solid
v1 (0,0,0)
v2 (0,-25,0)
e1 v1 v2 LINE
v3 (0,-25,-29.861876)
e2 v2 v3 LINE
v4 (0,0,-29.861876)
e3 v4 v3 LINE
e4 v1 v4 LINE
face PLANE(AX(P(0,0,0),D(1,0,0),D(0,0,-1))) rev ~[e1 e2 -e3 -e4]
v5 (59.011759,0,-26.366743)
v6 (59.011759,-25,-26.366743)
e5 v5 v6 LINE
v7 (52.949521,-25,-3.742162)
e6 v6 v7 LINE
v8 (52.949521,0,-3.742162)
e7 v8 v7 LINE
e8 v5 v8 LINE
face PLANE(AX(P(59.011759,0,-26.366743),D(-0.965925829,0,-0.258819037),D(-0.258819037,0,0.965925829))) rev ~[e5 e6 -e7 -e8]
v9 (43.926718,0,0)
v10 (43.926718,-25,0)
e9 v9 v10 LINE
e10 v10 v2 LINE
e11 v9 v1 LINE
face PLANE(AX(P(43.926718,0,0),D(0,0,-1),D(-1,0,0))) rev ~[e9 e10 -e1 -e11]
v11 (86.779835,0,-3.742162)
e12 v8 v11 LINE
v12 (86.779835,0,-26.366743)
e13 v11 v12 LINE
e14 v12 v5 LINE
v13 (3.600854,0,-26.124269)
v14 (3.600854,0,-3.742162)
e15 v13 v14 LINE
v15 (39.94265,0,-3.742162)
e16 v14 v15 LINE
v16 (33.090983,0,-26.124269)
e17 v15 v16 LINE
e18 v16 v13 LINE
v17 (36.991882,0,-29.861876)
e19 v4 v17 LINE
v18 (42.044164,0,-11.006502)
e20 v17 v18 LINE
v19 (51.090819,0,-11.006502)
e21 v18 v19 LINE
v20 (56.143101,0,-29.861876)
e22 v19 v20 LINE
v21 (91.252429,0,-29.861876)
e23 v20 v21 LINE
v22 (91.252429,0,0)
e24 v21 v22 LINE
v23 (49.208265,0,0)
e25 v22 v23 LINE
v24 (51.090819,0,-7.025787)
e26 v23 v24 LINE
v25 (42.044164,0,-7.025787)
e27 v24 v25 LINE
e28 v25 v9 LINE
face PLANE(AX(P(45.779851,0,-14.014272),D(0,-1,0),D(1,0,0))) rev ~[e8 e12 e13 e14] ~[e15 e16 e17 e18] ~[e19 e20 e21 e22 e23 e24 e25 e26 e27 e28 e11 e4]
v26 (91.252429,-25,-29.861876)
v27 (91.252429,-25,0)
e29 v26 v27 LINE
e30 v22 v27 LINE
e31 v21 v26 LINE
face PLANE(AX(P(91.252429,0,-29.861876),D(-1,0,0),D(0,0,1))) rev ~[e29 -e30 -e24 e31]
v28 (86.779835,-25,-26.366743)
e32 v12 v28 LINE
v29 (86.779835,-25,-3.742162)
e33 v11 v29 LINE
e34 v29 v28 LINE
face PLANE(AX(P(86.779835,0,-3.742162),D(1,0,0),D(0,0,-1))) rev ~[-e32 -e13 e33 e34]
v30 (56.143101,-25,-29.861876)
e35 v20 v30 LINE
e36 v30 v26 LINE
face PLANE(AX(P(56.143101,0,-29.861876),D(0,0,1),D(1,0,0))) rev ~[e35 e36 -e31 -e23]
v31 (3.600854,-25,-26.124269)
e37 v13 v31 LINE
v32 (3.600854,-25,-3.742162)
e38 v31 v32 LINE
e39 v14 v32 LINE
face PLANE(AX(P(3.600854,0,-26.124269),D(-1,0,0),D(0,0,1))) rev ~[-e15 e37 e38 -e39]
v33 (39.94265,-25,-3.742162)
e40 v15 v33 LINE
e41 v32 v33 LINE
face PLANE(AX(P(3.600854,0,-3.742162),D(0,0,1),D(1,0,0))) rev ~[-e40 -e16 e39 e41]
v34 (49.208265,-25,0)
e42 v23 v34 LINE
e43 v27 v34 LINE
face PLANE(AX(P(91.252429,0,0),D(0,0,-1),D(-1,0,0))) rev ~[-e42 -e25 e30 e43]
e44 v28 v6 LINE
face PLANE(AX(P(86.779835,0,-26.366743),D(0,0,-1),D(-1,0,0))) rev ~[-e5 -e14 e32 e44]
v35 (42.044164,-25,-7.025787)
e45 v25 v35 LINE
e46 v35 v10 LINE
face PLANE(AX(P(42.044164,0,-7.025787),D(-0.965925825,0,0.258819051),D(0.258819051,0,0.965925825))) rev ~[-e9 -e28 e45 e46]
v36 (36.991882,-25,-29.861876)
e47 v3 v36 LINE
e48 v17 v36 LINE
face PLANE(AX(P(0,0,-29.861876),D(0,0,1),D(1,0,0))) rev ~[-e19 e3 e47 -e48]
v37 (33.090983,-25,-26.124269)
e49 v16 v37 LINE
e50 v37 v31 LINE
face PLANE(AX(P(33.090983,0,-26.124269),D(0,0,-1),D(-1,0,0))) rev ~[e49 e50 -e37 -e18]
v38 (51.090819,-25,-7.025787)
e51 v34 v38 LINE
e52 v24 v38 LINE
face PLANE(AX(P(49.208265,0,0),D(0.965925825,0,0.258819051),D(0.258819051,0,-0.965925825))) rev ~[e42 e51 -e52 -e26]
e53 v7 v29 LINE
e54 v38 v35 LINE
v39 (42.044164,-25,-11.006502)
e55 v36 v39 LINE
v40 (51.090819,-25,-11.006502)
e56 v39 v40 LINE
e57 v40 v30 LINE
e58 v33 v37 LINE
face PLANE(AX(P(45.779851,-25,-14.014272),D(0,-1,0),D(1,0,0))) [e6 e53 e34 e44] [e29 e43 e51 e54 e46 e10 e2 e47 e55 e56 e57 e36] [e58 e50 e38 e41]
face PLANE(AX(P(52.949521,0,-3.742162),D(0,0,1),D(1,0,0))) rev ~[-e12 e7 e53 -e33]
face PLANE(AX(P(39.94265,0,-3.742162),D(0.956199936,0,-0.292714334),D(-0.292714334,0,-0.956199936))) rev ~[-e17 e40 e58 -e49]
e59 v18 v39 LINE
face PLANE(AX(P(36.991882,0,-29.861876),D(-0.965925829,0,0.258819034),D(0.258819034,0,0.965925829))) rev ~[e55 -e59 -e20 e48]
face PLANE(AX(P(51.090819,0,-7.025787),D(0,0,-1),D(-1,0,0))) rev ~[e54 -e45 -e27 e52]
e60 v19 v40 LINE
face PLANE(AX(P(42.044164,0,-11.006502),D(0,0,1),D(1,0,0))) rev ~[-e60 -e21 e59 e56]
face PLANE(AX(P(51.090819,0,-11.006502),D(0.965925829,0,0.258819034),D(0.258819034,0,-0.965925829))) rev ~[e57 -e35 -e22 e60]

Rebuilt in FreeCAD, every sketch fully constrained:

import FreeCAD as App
import Part
import Sketcher
Q = App.Units.Quantity

doc = App.newDocument("Part")
body = doc.addObject("PartDesign::Body", "Body")

sketch1 = doc.addObject("Sketcher::SketchObject", "Sketch")
body.addObject(sketch1)
sketch1.AttachmentSupport = (doc.XZ_Plane, [""])
sketch1.MapMode = "FlatFace"
sketch1.addGeometry([
    Part.LineSegment(App.Vector(42.044164, -7.025787, 0), App.Vector(43.926718, 0, 0)),
    Part.LineSegment(App.Vector(43.926718, 0, 0), App.Vector(0, 0, 0)),
    Part.LineSegment(App.Vector(0, 0, 0), App.Vector(0, -29.861876, 0)),
    Part.LineSegment(App.Vector(0, -29.861876, 0), App.Vector(36.991882, -29.861876, 0)),
    Part.LineSegment(App.Vector(36.991882, -29.861876, 0), App.Vector(42.044164, -11.006502, 0)),
    Part.LineSegment(App.Vector(42.044164, -11.006502, 0), App.Vector(51.090819, -11.006502, 0)),
    Part.LineSegment(App.Vector(51.090819, -11.006502, 0), App.Vector(56.143101, -29.861876, 0)),
    Part.LineSegment(App.Vector(56.143101, -29.861876, 0), App.Vector(91.252429, -29.861876, 0)),
    Part.LineSegment(App.Vector(91.252429, -29.861876, 0), App.Vector(91.252429, 0, 0)),
    Part.LineSegment(App.Vector(91.252429, 0, 0), App.Vector(49.208265, 0, 0)),
    Part.LineSegment(App.Vector(49.208265, 0, 0), App.Vector(51.090819, -7.025787, 0)),
    Part.LineSegment(App.Vector(51.090819, -7.025787, 0), App.Vector(42.044164, -7.025787, 0)),
    Part.LineSegment(App.Vector(33.090983, -26.124269, 0), App.Vector(3.600854, -26.124269, 0)),
    Part.LineSegment(App.Vector(3.600854, -26.124269, 0), App.Vector(3.600854, -3.742162, 0)),
    Part.LineSegment(App.Vector(3.600854, -3.742162, 0), App.Vector(39.94265, -3.742162, 0)),
    Part.LineSegment(App.Vector(39.94265, -3.742162, 0), App.Vector(33.090983, -26.124269, 0)),
    Part.LineSegment(App.Vector(59.011759, -26.366743, 0), App.Vector(52.949521, -3.742162, 0)),
    Part.LineSegment(App.Vector(52.949521, -3.742162, 0), App.Vector(86.779835, -3.742162, 0)),
    Part.LineSegment(App.Vector(86.779835, -3.742162, 0), App.Vector(86.779835, -26.366743, 0)),
    Part.LineSegment(App.Vector(86.779835, -26.366743, 0), App.Vector(59.011759, -26.366743, 0)),
], False)
sketch1.addConstraint([
    Sketcher.Constraint("Coincident", 0, 2, 1, 1),
    Sketcher.Constraint("Coincident", 1, 2, 2, 1),
    Sketcher.Constraint("Coincident", 2, 2, 3, 1),
    Sketcher.Constraint("Coincident", 3, 2, 4, 1),
    Sketcher.Constraint("Coincident", 4, 2, 5, 1),
    Sketcher.Constraint("Coincident", 5, 2, 6, 1),
    Sketcher.Constraint("Coincident", 6, 2, 7, 1),
    Sketcher.Constraint("Coincident", 7, 2, 8, 1),
    Sketcher.Constraint("Coincident", 8, 2, 9, 1),
    Sketcher.Constraint("Coincident", 9, 2, 10, 1),
    Sketcher.Constraint("Coincident", 10, 2, 11, 1),
    Sketcher.Constraint("Coincident", 11, 2, 0, 1),
    Sketcher.Constraint("Coincident", 12, 2, 13, 1),
    Sketcher.Constraint("Coincident", 13, 2, 14, 1),
    Sketcher.Constraint("Coincident", 14, 2, 15, 1),
    Sketcher.Constraint("Coincident", 15, 2, 12, 1),
    Sketcher.Constraint("Coincident", 16, 2, 17, 1),
    Sketcher.Constraint("Coincident", 17, 2, 18, 1),
    Sketcher.Constraint("Coincident", 18, 2, 19, 1),
    Sketcher.Constraint("Coincident", 19, 2, 16, 1),
    Sketcher.Constraint("Horizontal", 1),
    Sketcher.Constraint("Vertical", 2),
    Sketcher.Constraint("Horizontal", 3),
    Sketcher.Constraint("Horizontal", 5),
    Sketcher.Constraint("Horizontal", 7),
    Sketcher.Constraint("Vertical", 8),
    Sketcher.Constraint("Horizontal", 9),
    Sketcher.Constraint("Horizontal", 11),
    Sketcher.Constraint("Horizontal", 12),
    Sketcher.Constraint("Vertical", 13),
    Sketcher.Constraint("Horizontal", 14),
    Sketcher.Constraint("Horizontal", 17),
    Sketcher.Constraint("Vertical", 18),
    Sketcher.Constraint("Horizontal", 19),
    Sketcher.Constraint("Coincident", 1, 2, -1, 1),
    Sketcher.Constraint("PointOnObject", 8, 2, -1),
    Sketcher.Constraint("Parallel", 0, 4),
    Sketcher.Constraint("Parallel", 6, 10),
    Sketcher.Constraint("Parallel", 10, 16),
    Sketcher.Constraint("Horizontal", 3, 2, 6, 2),
    Sketcher.Constraint("Horizontal", 14, 2, 16, 2),
    Sketcher.Constraint("Vertical", 5, 2, 10, 2),
    Sketcher.Constraint("Vertical", 4, 2, 11, 2),
    Sketcher.Constraint("Equal", 4, 6),
    Sketcher.Constraint("Angle", 0, Q("75 deg")),
    Sketcher.Constraint("DistanceX", 3, 1, 3, 2, Q("36.991882 mm")),
    Sketcher.Constraint("DistanceX", 7, 1, 7, 2, Q("35.109328 mm")),
    Sketcher.Constraint("DistanceX", 12, 2, 12, 1, Q("29.490129 mm")),
    Sketcher.Constraint("DistanceY", 18, 2, 18, 1, Q("22.624581 mm")),
    Sketcher.Constraint("DistanceY", 4, 2, -1, 1, Q("11.006502 mm")),
    Sketcher.Constraint("DistanceX", -1, 1, 6, 2, Q("56.143101 mm")),
    Sketcher.Constraint("DistanceX", 0, 2, 5, 2, Q("7.164101 mm")),
    Sketcher.Constraint("DistanceX", 15, 2, 3, 2, Q("3.900899 mm")),
    Sketcher.Constraint("DistanceX", 10, 2, 16, 2, Q("1.858702 mm")),
    Sketcher.Constraint("Distance", 0, Q("7.27363 mm")),
    Sketcher.Constraint("Distance", 15, Q("23.40735 mm")),
    Sketcher.Constraint("DistanceX", 14, 1, 14, 2, Q("36.341796 mm")),
    Sketcher.Constraint("DistanceX", 17, 1, 17, 2, Q("33.830314 mm")),
    Sketcher.Constraint("DistanceY", 12, 2, -1, 1, Q("26.124269 mm")),
])
pad1 = doc.addObject("PartDesign::Pad", "Pad")
body.addObject(pad1)
pad1.Profile = sketch1
pad1.Length = 25

doc.recompute()
